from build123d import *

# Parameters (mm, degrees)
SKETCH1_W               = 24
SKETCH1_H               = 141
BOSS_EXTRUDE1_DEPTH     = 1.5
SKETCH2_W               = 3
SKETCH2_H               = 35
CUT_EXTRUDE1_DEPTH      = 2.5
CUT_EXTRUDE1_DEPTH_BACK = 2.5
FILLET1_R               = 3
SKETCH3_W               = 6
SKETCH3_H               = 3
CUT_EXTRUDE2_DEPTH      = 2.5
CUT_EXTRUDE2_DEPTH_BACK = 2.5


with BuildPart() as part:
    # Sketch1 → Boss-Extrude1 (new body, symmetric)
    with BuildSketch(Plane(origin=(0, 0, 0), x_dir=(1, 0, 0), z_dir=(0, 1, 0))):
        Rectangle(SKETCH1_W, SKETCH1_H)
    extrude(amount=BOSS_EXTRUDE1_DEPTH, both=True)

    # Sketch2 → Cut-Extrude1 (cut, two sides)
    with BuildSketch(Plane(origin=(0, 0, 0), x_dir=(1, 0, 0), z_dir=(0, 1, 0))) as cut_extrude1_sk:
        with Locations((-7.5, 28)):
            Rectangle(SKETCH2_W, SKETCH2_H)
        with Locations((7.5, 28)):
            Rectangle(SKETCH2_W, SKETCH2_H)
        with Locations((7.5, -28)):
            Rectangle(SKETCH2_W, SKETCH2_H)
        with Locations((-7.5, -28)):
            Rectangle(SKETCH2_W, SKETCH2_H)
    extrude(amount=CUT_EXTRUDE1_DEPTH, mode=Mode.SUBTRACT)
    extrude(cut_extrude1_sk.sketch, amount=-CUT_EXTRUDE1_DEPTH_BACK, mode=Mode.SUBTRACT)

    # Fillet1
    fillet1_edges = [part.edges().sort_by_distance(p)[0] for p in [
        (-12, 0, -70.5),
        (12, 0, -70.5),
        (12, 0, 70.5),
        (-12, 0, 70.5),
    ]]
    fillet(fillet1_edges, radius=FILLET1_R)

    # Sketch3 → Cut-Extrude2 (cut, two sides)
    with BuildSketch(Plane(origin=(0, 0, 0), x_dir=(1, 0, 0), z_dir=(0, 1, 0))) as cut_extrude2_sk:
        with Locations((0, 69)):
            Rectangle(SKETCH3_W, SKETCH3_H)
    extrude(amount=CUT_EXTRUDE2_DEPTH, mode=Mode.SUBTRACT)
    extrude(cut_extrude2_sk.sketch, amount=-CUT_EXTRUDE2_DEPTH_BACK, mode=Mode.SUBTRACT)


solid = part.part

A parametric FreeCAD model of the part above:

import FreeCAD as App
import Part
import Sketcher

V = App.Vector
Q = App.Units.Quantity


def edges_at(feature, points):
    """Names of the edges that pass closest to the given points."""
    edges = feature.Shape.Edges
    near = lambda p: min(range(len(edges)), key=lambda i: edges[i].distToShape(Part.Vertex(*p))[0])
    return sorted({f"Edge{near(p) + 1}" for p in points})


def add_polygon(sketch, points):
    """Adds a closed chain of lines whose ends are joined by coincident constraints."""
    first, n = sketch.GeometryCount, len(points)
    for a, b in zip(points, points[1:] + points[:1]):
        sketch.addGeometry(Part.LineSegment(App.Vector(*a, 0), App.Vector(*b, 0)), False)
    for i in range(n):
        sketch.addConstraint(Sketcher.Constraint("Coincident", first + i, 2, first + (i + 1) % n, 1))

doc = App.newDocument("Part")
body = doc.addObject("PartDesign::Body", "Body")

sketch1 = body.newObject("Sketcher::SketchObject", "Sketch")
sketch1.AttachmentSupport = (doc.getObject("XZ_Plane"), [""])
sketch1.MapMode = "FlatFace"
add_polygon(sketch1, [(-12, -70.5), (-12, 70.5), (12, 70.5), (12, -70.5)])
sketch1.addConstraint([
    Sketcher.Constraint("Vertical", 0),
    Sketcher.Constraint("Horizontal", 1),
    Sketcher.Constraint("Vertical", 2),
    Sketcher.Constraint("Horizontal", 3),
    Sketcher.Constraint("Symmetric", 0, 2, 2, 2, -1, 1),
    Sketcher.Constraint("DistanceX", 1, 1, 1, 2, Q("24 mm")),
    Sketcher.Constraint("DistanceY", 0, 1, 0, 2, Q("141 mm")),
])
pad1 = body.newObject("PartDesign::Pad", "Pad")
pad1.Profile = sketch1
pad1.Length = 3
pad1.Midplane = True

sketch2 = body.newObject("Sketcher::SketchObject", "Sketch001")
sketch2.AttachmentSupport = (doc.getObject("XZ_Plane"), [""])
sketch2.MapMode = "FlatFace"
add_polygon(sketch2, [(-9, -45.5), (-9, -10.5), (-6, -10.5), (-6, -45.5)])
add_polygon(sketch2, [(6, -45.5), (6, -10.5), (9, -10.5), (9, -45.5)])
add_polygon(sketch2, [(6, 10.5), (6, 45.5), (9, 45.5), (9, 10.5)])
add_polygon(sketch2, [(-9, 10.5), (-9, 45.5), (-6, 45.5), (-6, 10.5)])
sketch2.addConstraint([
    Sketcher.Constraint("Vertical", 0),
    Sketcher.Constraint("Horizontal", 1),
    Sketcher.Constraint("Vertical", 2),
    Sketcher.Constraint("Horizontal", 3),
    Sketcher.Constraint("Vertical", 4),
    Sketcher.Constraint("Horizontal", 5),
    Sketcher.Constraint("Vertical", 6),
    Sketcher.Constraint("Horizontal", 7),
    Sketcher.Constraint("Vertical", 8),
    Sketcher.Constraint("Horizontal", 9),
    Sketcher.Constraint("Vertical", 10),
    Sketcher.Constraint("Horizontal", 11),
    Sketcher.Constraint("Vertical", 12),
    Sketcher.Constraint("Horizontal", 13),
    Sketcher.Constraint("Vertical", 14),
    Sketcher.Constraint("Horizontal", 15),
    Sketcher.Constraint("Symmetric", 2, 2, 8, 2, -1, 1),
    Sketcher.Constraint("Symmetric", 0, 2, 10, 2, -1, 1),
    Sketcher.Constraint("Symmetric", 6, 2, 12, 2, -1, 1),
    Sketcher.Constraint("Symmetric", 4, 2, 14, 2, -1, 1),
    Sketcher.Constraint("Symmetric", 1, 2, 4, 2, -2),
    Sketcher.Constraint("Symmetric", 3, 2, 6, 2, -2),
    Sketcher.Constraint("DistanceX", 1, 1, 1, 2, Q("3 mm")),
    Sketcher.Constraint("DistanceY", 0, 1, 0, 2, Q("35 mm")),
    Sketcher.Constraint("DistanceX", 0, 2, -1, 1, Q("9 mm")),
    Sketcher.Constraint("DistanceY", 4, 2, 8, 2, Q("56 mm")),
])
pocket1 = body.newObject("PartDesign::Pocket", "Pocket")
pocket1.Profile = sketch2
pocket1.Type = "ThroughAll"
pocket1.Midplane = True
doc.recompute()

fillet = body.newObject("PartDesign::Fillet", "Fillet")
fillet.Base = (pocket1, edges_at(pocket1, [
    (-12, 0, -70.5),
    (12, 0, -70.5),
    (12, 0, 70.5),
    (-12, 0, 70.5),
]))
fillet.Radius = 3

sketch3 = body.newObject("Sketcher::SketchObject", "Sketch002")
sketch3.AttachmentSupport = (doc.getObject("XZ_Plane"), [""])
sketch3.MapMode = "FlatFace"
add_polygon(sketch3, [(-3, -70.5), (-3, -67.5), (3, -67.5), (3, -70.5)])
sketch3.addConstraint([
    Sketcher.Constraint("Vertical", 0),
    Sketcher.Constraint("Horizontal", 1),
    Sketcher.Constraint("Vertical", 2),
    Sketcher.Constraint("Horizontal", 3),
    Sketcher.Constraint("DistanceX", 1, 1, 1, 2, Q("6 mm")),
    Sketcher.Constraint("DistanceY", 0, 1, 0, 2, Q("3 mm")),
    Sketcher.Constraint("DistanceX", 0, 2, -1, 1, Q("3 mm")),
    Sketcher.Constraint("DistanceY", 0, 2, -1, 1, Q("67.5 mm")),
])
pocket2 = body.newObject("PartDesign::Pocket", "Pocket001")
pocket2.Profile = sketch3
pocket2.Type = "ThroughAll"
pocket2.Midplane = True

doc.recompute()
